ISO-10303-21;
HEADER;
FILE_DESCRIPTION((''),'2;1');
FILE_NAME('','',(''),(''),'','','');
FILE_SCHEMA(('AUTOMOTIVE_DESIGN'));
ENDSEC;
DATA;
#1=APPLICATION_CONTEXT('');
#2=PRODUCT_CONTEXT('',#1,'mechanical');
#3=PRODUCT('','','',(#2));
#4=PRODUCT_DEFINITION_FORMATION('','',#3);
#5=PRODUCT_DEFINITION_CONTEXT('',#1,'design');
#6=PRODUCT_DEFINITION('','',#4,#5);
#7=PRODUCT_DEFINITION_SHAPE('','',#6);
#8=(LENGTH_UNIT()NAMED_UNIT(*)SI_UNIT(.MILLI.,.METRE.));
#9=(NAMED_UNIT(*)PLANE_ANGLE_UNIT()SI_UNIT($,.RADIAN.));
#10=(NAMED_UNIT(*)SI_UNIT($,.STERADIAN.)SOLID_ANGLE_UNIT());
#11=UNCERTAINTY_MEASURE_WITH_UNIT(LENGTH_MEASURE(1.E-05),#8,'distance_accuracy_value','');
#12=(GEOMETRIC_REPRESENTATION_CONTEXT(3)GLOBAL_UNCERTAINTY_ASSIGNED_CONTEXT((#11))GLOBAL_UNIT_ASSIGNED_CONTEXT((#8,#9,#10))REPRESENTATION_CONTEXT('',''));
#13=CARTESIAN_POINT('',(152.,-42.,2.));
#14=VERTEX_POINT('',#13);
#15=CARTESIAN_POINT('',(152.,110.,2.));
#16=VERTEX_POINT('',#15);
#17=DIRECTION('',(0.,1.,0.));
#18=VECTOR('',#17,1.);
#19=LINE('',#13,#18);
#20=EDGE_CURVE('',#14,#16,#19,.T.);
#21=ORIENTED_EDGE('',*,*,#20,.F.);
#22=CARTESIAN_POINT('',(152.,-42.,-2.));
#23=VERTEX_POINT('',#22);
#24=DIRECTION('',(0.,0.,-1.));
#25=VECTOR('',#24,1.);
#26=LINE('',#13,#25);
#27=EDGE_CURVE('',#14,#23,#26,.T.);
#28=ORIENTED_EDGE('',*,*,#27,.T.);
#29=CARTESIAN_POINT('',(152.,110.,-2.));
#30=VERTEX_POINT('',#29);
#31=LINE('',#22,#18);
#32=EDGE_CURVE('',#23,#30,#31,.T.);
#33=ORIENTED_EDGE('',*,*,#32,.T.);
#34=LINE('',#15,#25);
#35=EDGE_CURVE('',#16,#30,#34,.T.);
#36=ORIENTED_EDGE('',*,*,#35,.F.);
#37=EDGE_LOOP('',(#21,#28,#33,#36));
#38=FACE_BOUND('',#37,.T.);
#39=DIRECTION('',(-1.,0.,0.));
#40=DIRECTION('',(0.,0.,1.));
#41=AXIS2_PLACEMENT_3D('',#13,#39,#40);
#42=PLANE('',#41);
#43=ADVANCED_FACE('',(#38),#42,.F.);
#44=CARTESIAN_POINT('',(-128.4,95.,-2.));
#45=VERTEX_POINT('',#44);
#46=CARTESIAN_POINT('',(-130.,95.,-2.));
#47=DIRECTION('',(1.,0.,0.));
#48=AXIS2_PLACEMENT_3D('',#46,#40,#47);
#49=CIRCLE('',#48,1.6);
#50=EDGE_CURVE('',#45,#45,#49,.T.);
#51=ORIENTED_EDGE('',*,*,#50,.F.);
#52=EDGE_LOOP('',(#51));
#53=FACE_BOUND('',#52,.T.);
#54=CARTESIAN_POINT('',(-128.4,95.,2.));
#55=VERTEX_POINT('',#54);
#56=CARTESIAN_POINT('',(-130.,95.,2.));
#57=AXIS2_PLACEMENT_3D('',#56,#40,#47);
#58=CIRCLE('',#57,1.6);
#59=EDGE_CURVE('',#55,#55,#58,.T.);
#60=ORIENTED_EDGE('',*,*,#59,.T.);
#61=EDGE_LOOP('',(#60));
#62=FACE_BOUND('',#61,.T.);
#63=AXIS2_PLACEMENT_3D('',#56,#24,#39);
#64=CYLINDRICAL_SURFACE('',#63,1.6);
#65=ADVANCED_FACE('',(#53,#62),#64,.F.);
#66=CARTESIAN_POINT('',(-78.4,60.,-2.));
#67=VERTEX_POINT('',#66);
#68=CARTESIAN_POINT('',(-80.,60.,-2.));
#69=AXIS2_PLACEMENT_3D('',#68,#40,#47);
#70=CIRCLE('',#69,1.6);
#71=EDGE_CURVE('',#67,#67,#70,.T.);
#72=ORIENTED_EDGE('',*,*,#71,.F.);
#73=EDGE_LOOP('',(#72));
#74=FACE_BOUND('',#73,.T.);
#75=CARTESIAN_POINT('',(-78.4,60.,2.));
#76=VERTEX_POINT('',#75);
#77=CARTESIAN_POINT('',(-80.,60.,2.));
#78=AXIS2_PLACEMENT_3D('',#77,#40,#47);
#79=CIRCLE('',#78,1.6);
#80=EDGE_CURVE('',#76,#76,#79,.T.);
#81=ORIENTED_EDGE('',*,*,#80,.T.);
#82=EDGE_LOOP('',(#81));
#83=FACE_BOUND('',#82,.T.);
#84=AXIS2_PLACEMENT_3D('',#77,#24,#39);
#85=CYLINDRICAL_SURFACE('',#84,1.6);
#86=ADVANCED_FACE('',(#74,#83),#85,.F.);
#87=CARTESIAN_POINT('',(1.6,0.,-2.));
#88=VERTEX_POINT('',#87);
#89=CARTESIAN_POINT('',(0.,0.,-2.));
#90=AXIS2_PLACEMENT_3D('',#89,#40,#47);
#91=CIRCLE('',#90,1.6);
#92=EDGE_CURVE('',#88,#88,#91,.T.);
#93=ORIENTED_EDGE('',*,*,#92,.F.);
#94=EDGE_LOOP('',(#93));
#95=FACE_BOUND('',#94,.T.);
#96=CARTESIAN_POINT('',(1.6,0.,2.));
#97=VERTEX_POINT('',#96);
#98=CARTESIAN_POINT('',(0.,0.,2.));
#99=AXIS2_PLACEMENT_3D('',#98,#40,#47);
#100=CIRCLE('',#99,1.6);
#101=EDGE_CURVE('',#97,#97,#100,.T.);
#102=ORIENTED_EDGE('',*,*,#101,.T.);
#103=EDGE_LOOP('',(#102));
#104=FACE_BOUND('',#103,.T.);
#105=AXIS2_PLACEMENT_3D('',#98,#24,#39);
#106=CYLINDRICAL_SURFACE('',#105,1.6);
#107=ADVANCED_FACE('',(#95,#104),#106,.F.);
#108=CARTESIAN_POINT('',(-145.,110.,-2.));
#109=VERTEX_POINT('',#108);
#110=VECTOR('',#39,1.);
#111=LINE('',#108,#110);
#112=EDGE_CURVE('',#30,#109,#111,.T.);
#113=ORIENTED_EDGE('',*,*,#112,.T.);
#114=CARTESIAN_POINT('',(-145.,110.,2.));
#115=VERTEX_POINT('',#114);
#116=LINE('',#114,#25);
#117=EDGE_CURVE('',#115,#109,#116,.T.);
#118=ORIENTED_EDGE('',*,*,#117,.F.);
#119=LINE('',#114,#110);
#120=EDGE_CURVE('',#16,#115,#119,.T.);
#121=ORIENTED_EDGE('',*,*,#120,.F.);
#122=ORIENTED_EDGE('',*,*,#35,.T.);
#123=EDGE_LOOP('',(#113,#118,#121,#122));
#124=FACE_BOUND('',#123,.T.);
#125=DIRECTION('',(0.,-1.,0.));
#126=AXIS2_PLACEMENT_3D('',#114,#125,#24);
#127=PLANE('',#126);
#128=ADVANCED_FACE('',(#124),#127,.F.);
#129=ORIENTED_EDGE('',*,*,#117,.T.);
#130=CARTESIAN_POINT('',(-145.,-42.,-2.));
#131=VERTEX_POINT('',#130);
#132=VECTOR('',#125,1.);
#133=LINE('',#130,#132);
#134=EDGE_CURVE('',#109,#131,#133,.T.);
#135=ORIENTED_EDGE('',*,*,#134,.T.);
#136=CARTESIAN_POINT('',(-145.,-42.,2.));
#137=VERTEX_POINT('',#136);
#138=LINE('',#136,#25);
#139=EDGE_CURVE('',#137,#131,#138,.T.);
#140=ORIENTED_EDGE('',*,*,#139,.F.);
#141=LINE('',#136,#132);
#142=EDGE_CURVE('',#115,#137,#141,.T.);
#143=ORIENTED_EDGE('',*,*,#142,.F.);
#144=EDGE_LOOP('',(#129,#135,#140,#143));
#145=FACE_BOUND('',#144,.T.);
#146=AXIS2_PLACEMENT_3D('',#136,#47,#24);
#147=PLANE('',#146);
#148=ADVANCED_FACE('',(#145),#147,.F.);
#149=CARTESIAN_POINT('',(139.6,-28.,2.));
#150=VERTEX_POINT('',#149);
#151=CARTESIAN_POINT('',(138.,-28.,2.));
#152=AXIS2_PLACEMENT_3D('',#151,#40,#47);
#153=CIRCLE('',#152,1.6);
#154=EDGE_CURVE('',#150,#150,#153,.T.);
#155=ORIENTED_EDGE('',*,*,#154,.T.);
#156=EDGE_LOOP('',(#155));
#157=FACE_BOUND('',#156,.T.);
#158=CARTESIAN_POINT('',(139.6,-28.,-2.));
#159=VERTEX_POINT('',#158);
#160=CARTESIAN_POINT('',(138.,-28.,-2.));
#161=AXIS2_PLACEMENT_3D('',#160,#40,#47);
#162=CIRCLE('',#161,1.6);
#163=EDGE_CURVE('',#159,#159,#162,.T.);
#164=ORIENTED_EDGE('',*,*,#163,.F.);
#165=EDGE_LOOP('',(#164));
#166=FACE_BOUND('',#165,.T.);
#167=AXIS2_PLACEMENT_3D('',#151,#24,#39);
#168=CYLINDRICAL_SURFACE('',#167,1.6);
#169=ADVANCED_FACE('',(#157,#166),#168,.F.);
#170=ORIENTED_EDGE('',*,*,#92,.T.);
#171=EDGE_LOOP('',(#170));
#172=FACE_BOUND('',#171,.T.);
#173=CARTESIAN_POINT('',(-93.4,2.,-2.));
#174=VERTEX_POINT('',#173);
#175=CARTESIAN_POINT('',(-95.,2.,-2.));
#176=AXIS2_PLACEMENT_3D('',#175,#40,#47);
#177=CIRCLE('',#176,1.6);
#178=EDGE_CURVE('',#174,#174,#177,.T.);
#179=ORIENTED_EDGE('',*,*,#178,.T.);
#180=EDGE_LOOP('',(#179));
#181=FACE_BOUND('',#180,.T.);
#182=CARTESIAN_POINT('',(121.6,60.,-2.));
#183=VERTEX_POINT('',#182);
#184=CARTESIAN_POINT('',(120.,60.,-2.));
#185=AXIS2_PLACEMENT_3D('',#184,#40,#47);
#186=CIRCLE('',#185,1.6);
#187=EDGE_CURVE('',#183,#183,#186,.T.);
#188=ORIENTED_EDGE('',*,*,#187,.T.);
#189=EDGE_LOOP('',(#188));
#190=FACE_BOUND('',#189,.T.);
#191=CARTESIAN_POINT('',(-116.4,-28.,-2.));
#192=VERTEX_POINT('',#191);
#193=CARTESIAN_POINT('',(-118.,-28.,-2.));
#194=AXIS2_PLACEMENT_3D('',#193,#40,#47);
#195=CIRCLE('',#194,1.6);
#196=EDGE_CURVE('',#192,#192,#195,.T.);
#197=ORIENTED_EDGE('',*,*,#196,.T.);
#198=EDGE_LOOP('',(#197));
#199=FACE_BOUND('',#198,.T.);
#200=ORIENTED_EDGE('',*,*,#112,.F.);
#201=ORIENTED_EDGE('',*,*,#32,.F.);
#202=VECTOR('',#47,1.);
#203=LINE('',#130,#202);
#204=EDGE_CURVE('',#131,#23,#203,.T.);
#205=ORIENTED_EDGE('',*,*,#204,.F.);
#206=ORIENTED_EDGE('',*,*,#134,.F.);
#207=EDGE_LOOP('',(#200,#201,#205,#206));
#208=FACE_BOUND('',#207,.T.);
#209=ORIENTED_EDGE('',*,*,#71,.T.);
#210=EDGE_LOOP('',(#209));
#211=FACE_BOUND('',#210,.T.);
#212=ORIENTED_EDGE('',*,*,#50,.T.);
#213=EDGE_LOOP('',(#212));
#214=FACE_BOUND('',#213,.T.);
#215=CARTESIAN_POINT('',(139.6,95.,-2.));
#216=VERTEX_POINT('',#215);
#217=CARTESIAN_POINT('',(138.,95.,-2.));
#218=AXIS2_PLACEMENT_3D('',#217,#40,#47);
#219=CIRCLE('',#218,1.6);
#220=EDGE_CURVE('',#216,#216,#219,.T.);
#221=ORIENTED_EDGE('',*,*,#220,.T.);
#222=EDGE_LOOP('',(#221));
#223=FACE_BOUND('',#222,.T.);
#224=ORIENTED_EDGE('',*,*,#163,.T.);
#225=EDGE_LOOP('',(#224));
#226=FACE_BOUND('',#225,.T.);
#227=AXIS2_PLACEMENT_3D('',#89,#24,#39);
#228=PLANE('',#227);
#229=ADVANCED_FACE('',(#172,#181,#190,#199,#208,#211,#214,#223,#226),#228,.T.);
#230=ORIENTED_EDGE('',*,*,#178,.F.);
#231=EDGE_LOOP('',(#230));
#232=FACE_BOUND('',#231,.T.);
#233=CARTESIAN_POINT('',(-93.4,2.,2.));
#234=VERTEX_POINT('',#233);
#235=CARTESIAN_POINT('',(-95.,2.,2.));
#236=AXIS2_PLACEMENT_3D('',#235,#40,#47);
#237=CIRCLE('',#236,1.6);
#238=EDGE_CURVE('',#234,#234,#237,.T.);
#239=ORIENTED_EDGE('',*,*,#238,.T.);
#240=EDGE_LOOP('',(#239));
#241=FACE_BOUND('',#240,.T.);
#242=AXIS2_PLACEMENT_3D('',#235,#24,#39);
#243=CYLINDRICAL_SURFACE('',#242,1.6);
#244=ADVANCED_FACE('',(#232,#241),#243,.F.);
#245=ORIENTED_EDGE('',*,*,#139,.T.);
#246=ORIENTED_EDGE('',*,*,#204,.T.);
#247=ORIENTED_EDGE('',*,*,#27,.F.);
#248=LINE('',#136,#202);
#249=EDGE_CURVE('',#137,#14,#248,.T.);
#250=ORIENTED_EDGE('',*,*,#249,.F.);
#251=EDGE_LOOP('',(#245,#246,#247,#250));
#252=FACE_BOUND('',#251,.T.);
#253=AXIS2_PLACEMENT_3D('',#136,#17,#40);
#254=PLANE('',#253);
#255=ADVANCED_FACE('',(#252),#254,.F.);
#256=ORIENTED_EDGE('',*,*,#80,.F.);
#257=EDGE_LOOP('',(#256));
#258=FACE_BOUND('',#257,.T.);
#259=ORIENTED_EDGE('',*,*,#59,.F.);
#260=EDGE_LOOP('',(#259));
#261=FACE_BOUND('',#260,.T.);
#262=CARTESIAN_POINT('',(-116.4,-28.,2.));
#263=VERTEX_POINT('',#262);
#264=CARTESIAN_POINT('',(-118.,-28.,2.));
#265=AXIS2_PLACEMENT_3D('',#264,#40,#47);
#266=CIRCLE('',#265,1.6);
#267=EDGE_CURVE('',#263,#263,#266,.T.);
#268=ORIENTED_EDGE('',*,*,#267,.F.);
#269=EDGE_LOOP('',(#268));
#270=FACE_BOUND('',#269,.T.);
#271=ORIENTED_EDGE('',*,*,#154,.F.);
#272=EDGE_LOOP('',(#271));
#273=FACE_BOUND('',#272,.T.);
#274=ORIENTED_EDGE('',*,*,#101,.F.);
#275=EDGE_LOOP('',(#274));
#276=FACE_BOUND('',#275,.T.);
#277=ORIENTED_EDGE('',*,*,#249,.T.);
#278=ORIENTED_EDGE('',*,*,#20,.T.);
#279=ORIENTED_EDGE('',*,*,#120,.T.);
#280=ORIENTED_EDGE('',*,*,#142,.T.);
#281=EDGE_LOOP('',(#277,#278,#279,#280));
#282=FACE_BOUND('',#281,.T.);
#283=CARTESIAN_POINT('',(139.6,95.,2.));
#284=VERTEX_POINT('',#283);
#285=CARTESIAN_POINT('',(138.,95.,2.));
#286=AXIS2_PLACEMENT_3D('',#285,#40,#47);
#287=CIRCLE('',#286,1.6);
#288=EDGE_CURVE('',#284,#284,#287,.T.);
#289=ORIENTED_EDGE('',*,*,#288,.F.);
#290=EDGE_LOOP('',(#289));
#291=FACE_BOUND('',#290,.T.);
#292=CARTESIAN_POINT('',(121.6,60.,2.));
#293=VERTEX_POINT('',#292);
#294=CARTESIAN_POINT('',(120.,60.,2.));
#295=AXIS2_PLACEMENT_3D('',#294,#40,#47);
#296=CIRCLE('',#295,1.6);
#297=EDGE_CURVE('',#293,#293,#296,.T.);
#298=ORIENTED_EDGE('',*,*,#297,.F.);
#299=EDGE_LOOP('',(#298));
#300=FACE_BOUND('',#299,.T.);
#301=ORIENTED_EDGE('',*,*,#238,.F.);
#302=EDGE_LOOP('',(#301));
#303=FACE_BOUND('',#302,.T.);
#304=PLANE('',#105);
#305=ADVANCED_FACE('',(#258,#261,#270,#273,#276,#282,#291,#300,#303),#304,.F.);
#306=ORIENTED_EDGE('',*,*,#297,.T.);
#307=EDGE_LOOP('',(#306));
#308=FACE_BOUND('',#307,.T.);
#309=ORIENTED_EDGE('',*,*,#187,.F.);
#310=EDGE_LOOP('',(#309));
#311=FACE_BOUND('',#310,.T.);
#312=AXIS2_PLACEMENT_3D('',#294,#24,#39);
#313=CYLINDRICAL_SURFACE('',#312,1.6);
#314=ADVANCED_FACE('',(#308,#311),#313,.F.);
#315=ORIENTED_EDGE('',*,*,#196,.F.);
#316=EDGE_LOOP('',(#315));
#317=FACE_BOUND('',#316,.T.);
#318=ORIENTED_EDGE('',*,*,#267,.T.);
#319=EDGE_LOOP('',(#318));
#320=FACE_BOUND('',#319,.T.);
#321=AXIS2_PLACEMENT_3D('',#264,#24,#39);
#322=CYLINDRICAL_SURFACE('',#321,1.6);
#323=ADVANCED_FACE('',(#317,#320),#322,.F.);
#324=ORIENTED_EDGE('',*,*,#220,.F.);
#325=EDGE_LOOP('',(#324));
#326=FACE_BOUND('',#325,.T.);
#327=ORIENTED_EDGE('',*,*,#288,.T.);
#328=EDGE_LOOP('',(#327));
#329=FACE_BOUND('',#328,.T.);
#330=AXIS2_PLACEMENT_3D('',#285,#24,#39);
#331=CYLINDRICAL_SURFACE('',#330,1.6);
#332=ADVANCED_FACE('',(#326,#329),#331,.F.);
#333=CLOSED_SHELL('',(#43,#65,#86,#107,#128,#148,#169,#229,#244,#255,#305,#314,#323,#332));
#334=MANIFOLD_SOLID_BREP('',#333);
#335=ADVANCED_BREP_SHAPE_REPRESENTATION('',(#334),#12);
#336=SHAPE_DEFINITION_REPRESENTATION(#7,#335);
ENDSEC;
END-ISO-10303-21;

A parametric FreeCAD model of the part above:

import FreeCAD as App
import Part
import Sketcher

doc = App.newDocument("Part")
body = doc.addObject("PartDesign::Body", "Body")

# Sketch on XY plane
sketch1 = body.newObject("Sketcher::SketchObject", "Sketch")
sketch1.AttachmentSupport = (doc.getObject("XY_Plane"), [""])
sketch1.MapMode = "FlatFace"
sketch1.addGeometry([
    Part.LineSegment(App.Vector(-145, 110, 0), App.Vector(-145, -42, 0)),  # 0
    Part.LineSegment(App.Vector(-145, -42, 0), App.Vector(152, -42, 0)),  # 1
    Part.LineSegment(App.Vector(152, -42, 0), App.Vector(152, 110, 0)),  # 2
    Part.LineSegment(App.Vector(152, 110, 0), App.Vector(-145, 110, 0)),  # 3
    Part.Circle(App.Vector(-118, -28, 0), App.Vector(0, 0, 1), 1.6),  # 4
    Part.Circle(App.Vector(0, 0, 0), App.Vector(0, 0, 1), 1.6),  # 5
    Part.Circle(App.Vector(-95, 2, 0), App.Vector(0, 0, 1), 1.6),  # 6
    Part.Circle(App.Vector(138, -28, 0), App.Vector(0, 0, 1), 1.6),  # 7
    Part.Circle(App.Vector(-80, 60, 0), App.Vector(0, 0, 1), 1.6),  # 8
    Part.Circle(App.Vector(-130, 95, 0), App.Vector(0, 0, 1), 1.6),  # 9
    Part.Circle(App.Vector(120, 60, 0), App.Vector(0, 0, 1), 1.6),  # 10
    Part.Circle(App.Vector(138, 95, 0), App.Vector(0, 0, 1), 1.6),  # 11
], False)
sketch1.addConstraint([
    Sketcher.Constraint("Coincident", 0, 2, 1, 1),
    Sketcher.Constraint("Coincident", 1, 2, 2, 1),
    Sketcher.Constraint("Coincident", 2, 2, 3, 1),
    Sketcher.Constraint("Coincident", 3, 2, 0, 1),
    Sketcher.Constraint("Vertical", 0),
    Sketcher.Constraint("Horizontal", 1),
    Sketcher.Constraint("Vertical", 2),
    Sketcher.Constraint("Horizontal", 3),
    Sketcher.Constraint("Coincident", 5, 3, -1, 1),
    Sketcher.Constraint("Equal", 4, 5),
    Sketcher.Constraint("Equal", 5, 6),
    Sketcher.Constraint("Equal", 6, 7),
    Sketcher.Constraint("Equal", 7, 8),
    Sketcher.Constraint("Equal", 8, 9),
    Sketcher.Constraint("Equal", 9, 10),
    Sketcher.Constraint("Equal", 10, 11),
    Sketcher.Constraint("Horizontal", 4, 3, 7, 3),
    Sketcher.Constraint("Horizontal", 8, 3, 10, 3),
    Sketcher.Constraint("Horizontal", 9, 3, 11, 3),
    Sketcher.Constraint("Vertical", 7, 3, 11, 3),
    Sketcher.Constraint("Diameter", 4, 3.2),
    Sketcher.Constraint("DistanceX", 1, 1, 1, 2, 297.0),
    Sketcher.Constraint("DistanceY", 0, 2, 0, 1, 152.0),
    Sketcher.Constraint("DistanceX", 4, 3, -1, 1, 118.0),
    Sketcher.Constraint("DistanceY", 4, 3, -1, 1, 28.0),
    Sketcher.Constraint("DistanceX", 6, 3, -1, 1, 95.0),
    Sketcher.Constraint("DistanceY", -1, 1, 6, 3, 2.0),
    Sketcher.Constraint("DistanceX", -1, 1, 7, 3, 138.0),
    Sketcher.Constraint("DistanceX", 8, 3, -1, 1, 80.0),
    Sketcher.Constraint("DistanceY", -1, 1, 8, 3, 60.0),
    Sketcher.Constraint("DistanceX", 9, 3, -1, 1, 130.0),
    Sketcher.Constraint("DistanceY", -1, 1, 9, 3, 95.0),
    Sketcher.Constraint("DistanceX", -1, 1, 10, 3, 120.0),
    Sketcher.Constraint("DistanceX", 0, 2, -1, 1, 145.0),
    Sketcher.Constraint("DistanceY", 0, 2, -1, 1, 42.0),
])
pad1 = body.newObject("PartDesign::Pad", "Pad")
pad1.Profile = sketch1
pad1.Length = 4
pad1.Midplane = True

doc.recompute()
